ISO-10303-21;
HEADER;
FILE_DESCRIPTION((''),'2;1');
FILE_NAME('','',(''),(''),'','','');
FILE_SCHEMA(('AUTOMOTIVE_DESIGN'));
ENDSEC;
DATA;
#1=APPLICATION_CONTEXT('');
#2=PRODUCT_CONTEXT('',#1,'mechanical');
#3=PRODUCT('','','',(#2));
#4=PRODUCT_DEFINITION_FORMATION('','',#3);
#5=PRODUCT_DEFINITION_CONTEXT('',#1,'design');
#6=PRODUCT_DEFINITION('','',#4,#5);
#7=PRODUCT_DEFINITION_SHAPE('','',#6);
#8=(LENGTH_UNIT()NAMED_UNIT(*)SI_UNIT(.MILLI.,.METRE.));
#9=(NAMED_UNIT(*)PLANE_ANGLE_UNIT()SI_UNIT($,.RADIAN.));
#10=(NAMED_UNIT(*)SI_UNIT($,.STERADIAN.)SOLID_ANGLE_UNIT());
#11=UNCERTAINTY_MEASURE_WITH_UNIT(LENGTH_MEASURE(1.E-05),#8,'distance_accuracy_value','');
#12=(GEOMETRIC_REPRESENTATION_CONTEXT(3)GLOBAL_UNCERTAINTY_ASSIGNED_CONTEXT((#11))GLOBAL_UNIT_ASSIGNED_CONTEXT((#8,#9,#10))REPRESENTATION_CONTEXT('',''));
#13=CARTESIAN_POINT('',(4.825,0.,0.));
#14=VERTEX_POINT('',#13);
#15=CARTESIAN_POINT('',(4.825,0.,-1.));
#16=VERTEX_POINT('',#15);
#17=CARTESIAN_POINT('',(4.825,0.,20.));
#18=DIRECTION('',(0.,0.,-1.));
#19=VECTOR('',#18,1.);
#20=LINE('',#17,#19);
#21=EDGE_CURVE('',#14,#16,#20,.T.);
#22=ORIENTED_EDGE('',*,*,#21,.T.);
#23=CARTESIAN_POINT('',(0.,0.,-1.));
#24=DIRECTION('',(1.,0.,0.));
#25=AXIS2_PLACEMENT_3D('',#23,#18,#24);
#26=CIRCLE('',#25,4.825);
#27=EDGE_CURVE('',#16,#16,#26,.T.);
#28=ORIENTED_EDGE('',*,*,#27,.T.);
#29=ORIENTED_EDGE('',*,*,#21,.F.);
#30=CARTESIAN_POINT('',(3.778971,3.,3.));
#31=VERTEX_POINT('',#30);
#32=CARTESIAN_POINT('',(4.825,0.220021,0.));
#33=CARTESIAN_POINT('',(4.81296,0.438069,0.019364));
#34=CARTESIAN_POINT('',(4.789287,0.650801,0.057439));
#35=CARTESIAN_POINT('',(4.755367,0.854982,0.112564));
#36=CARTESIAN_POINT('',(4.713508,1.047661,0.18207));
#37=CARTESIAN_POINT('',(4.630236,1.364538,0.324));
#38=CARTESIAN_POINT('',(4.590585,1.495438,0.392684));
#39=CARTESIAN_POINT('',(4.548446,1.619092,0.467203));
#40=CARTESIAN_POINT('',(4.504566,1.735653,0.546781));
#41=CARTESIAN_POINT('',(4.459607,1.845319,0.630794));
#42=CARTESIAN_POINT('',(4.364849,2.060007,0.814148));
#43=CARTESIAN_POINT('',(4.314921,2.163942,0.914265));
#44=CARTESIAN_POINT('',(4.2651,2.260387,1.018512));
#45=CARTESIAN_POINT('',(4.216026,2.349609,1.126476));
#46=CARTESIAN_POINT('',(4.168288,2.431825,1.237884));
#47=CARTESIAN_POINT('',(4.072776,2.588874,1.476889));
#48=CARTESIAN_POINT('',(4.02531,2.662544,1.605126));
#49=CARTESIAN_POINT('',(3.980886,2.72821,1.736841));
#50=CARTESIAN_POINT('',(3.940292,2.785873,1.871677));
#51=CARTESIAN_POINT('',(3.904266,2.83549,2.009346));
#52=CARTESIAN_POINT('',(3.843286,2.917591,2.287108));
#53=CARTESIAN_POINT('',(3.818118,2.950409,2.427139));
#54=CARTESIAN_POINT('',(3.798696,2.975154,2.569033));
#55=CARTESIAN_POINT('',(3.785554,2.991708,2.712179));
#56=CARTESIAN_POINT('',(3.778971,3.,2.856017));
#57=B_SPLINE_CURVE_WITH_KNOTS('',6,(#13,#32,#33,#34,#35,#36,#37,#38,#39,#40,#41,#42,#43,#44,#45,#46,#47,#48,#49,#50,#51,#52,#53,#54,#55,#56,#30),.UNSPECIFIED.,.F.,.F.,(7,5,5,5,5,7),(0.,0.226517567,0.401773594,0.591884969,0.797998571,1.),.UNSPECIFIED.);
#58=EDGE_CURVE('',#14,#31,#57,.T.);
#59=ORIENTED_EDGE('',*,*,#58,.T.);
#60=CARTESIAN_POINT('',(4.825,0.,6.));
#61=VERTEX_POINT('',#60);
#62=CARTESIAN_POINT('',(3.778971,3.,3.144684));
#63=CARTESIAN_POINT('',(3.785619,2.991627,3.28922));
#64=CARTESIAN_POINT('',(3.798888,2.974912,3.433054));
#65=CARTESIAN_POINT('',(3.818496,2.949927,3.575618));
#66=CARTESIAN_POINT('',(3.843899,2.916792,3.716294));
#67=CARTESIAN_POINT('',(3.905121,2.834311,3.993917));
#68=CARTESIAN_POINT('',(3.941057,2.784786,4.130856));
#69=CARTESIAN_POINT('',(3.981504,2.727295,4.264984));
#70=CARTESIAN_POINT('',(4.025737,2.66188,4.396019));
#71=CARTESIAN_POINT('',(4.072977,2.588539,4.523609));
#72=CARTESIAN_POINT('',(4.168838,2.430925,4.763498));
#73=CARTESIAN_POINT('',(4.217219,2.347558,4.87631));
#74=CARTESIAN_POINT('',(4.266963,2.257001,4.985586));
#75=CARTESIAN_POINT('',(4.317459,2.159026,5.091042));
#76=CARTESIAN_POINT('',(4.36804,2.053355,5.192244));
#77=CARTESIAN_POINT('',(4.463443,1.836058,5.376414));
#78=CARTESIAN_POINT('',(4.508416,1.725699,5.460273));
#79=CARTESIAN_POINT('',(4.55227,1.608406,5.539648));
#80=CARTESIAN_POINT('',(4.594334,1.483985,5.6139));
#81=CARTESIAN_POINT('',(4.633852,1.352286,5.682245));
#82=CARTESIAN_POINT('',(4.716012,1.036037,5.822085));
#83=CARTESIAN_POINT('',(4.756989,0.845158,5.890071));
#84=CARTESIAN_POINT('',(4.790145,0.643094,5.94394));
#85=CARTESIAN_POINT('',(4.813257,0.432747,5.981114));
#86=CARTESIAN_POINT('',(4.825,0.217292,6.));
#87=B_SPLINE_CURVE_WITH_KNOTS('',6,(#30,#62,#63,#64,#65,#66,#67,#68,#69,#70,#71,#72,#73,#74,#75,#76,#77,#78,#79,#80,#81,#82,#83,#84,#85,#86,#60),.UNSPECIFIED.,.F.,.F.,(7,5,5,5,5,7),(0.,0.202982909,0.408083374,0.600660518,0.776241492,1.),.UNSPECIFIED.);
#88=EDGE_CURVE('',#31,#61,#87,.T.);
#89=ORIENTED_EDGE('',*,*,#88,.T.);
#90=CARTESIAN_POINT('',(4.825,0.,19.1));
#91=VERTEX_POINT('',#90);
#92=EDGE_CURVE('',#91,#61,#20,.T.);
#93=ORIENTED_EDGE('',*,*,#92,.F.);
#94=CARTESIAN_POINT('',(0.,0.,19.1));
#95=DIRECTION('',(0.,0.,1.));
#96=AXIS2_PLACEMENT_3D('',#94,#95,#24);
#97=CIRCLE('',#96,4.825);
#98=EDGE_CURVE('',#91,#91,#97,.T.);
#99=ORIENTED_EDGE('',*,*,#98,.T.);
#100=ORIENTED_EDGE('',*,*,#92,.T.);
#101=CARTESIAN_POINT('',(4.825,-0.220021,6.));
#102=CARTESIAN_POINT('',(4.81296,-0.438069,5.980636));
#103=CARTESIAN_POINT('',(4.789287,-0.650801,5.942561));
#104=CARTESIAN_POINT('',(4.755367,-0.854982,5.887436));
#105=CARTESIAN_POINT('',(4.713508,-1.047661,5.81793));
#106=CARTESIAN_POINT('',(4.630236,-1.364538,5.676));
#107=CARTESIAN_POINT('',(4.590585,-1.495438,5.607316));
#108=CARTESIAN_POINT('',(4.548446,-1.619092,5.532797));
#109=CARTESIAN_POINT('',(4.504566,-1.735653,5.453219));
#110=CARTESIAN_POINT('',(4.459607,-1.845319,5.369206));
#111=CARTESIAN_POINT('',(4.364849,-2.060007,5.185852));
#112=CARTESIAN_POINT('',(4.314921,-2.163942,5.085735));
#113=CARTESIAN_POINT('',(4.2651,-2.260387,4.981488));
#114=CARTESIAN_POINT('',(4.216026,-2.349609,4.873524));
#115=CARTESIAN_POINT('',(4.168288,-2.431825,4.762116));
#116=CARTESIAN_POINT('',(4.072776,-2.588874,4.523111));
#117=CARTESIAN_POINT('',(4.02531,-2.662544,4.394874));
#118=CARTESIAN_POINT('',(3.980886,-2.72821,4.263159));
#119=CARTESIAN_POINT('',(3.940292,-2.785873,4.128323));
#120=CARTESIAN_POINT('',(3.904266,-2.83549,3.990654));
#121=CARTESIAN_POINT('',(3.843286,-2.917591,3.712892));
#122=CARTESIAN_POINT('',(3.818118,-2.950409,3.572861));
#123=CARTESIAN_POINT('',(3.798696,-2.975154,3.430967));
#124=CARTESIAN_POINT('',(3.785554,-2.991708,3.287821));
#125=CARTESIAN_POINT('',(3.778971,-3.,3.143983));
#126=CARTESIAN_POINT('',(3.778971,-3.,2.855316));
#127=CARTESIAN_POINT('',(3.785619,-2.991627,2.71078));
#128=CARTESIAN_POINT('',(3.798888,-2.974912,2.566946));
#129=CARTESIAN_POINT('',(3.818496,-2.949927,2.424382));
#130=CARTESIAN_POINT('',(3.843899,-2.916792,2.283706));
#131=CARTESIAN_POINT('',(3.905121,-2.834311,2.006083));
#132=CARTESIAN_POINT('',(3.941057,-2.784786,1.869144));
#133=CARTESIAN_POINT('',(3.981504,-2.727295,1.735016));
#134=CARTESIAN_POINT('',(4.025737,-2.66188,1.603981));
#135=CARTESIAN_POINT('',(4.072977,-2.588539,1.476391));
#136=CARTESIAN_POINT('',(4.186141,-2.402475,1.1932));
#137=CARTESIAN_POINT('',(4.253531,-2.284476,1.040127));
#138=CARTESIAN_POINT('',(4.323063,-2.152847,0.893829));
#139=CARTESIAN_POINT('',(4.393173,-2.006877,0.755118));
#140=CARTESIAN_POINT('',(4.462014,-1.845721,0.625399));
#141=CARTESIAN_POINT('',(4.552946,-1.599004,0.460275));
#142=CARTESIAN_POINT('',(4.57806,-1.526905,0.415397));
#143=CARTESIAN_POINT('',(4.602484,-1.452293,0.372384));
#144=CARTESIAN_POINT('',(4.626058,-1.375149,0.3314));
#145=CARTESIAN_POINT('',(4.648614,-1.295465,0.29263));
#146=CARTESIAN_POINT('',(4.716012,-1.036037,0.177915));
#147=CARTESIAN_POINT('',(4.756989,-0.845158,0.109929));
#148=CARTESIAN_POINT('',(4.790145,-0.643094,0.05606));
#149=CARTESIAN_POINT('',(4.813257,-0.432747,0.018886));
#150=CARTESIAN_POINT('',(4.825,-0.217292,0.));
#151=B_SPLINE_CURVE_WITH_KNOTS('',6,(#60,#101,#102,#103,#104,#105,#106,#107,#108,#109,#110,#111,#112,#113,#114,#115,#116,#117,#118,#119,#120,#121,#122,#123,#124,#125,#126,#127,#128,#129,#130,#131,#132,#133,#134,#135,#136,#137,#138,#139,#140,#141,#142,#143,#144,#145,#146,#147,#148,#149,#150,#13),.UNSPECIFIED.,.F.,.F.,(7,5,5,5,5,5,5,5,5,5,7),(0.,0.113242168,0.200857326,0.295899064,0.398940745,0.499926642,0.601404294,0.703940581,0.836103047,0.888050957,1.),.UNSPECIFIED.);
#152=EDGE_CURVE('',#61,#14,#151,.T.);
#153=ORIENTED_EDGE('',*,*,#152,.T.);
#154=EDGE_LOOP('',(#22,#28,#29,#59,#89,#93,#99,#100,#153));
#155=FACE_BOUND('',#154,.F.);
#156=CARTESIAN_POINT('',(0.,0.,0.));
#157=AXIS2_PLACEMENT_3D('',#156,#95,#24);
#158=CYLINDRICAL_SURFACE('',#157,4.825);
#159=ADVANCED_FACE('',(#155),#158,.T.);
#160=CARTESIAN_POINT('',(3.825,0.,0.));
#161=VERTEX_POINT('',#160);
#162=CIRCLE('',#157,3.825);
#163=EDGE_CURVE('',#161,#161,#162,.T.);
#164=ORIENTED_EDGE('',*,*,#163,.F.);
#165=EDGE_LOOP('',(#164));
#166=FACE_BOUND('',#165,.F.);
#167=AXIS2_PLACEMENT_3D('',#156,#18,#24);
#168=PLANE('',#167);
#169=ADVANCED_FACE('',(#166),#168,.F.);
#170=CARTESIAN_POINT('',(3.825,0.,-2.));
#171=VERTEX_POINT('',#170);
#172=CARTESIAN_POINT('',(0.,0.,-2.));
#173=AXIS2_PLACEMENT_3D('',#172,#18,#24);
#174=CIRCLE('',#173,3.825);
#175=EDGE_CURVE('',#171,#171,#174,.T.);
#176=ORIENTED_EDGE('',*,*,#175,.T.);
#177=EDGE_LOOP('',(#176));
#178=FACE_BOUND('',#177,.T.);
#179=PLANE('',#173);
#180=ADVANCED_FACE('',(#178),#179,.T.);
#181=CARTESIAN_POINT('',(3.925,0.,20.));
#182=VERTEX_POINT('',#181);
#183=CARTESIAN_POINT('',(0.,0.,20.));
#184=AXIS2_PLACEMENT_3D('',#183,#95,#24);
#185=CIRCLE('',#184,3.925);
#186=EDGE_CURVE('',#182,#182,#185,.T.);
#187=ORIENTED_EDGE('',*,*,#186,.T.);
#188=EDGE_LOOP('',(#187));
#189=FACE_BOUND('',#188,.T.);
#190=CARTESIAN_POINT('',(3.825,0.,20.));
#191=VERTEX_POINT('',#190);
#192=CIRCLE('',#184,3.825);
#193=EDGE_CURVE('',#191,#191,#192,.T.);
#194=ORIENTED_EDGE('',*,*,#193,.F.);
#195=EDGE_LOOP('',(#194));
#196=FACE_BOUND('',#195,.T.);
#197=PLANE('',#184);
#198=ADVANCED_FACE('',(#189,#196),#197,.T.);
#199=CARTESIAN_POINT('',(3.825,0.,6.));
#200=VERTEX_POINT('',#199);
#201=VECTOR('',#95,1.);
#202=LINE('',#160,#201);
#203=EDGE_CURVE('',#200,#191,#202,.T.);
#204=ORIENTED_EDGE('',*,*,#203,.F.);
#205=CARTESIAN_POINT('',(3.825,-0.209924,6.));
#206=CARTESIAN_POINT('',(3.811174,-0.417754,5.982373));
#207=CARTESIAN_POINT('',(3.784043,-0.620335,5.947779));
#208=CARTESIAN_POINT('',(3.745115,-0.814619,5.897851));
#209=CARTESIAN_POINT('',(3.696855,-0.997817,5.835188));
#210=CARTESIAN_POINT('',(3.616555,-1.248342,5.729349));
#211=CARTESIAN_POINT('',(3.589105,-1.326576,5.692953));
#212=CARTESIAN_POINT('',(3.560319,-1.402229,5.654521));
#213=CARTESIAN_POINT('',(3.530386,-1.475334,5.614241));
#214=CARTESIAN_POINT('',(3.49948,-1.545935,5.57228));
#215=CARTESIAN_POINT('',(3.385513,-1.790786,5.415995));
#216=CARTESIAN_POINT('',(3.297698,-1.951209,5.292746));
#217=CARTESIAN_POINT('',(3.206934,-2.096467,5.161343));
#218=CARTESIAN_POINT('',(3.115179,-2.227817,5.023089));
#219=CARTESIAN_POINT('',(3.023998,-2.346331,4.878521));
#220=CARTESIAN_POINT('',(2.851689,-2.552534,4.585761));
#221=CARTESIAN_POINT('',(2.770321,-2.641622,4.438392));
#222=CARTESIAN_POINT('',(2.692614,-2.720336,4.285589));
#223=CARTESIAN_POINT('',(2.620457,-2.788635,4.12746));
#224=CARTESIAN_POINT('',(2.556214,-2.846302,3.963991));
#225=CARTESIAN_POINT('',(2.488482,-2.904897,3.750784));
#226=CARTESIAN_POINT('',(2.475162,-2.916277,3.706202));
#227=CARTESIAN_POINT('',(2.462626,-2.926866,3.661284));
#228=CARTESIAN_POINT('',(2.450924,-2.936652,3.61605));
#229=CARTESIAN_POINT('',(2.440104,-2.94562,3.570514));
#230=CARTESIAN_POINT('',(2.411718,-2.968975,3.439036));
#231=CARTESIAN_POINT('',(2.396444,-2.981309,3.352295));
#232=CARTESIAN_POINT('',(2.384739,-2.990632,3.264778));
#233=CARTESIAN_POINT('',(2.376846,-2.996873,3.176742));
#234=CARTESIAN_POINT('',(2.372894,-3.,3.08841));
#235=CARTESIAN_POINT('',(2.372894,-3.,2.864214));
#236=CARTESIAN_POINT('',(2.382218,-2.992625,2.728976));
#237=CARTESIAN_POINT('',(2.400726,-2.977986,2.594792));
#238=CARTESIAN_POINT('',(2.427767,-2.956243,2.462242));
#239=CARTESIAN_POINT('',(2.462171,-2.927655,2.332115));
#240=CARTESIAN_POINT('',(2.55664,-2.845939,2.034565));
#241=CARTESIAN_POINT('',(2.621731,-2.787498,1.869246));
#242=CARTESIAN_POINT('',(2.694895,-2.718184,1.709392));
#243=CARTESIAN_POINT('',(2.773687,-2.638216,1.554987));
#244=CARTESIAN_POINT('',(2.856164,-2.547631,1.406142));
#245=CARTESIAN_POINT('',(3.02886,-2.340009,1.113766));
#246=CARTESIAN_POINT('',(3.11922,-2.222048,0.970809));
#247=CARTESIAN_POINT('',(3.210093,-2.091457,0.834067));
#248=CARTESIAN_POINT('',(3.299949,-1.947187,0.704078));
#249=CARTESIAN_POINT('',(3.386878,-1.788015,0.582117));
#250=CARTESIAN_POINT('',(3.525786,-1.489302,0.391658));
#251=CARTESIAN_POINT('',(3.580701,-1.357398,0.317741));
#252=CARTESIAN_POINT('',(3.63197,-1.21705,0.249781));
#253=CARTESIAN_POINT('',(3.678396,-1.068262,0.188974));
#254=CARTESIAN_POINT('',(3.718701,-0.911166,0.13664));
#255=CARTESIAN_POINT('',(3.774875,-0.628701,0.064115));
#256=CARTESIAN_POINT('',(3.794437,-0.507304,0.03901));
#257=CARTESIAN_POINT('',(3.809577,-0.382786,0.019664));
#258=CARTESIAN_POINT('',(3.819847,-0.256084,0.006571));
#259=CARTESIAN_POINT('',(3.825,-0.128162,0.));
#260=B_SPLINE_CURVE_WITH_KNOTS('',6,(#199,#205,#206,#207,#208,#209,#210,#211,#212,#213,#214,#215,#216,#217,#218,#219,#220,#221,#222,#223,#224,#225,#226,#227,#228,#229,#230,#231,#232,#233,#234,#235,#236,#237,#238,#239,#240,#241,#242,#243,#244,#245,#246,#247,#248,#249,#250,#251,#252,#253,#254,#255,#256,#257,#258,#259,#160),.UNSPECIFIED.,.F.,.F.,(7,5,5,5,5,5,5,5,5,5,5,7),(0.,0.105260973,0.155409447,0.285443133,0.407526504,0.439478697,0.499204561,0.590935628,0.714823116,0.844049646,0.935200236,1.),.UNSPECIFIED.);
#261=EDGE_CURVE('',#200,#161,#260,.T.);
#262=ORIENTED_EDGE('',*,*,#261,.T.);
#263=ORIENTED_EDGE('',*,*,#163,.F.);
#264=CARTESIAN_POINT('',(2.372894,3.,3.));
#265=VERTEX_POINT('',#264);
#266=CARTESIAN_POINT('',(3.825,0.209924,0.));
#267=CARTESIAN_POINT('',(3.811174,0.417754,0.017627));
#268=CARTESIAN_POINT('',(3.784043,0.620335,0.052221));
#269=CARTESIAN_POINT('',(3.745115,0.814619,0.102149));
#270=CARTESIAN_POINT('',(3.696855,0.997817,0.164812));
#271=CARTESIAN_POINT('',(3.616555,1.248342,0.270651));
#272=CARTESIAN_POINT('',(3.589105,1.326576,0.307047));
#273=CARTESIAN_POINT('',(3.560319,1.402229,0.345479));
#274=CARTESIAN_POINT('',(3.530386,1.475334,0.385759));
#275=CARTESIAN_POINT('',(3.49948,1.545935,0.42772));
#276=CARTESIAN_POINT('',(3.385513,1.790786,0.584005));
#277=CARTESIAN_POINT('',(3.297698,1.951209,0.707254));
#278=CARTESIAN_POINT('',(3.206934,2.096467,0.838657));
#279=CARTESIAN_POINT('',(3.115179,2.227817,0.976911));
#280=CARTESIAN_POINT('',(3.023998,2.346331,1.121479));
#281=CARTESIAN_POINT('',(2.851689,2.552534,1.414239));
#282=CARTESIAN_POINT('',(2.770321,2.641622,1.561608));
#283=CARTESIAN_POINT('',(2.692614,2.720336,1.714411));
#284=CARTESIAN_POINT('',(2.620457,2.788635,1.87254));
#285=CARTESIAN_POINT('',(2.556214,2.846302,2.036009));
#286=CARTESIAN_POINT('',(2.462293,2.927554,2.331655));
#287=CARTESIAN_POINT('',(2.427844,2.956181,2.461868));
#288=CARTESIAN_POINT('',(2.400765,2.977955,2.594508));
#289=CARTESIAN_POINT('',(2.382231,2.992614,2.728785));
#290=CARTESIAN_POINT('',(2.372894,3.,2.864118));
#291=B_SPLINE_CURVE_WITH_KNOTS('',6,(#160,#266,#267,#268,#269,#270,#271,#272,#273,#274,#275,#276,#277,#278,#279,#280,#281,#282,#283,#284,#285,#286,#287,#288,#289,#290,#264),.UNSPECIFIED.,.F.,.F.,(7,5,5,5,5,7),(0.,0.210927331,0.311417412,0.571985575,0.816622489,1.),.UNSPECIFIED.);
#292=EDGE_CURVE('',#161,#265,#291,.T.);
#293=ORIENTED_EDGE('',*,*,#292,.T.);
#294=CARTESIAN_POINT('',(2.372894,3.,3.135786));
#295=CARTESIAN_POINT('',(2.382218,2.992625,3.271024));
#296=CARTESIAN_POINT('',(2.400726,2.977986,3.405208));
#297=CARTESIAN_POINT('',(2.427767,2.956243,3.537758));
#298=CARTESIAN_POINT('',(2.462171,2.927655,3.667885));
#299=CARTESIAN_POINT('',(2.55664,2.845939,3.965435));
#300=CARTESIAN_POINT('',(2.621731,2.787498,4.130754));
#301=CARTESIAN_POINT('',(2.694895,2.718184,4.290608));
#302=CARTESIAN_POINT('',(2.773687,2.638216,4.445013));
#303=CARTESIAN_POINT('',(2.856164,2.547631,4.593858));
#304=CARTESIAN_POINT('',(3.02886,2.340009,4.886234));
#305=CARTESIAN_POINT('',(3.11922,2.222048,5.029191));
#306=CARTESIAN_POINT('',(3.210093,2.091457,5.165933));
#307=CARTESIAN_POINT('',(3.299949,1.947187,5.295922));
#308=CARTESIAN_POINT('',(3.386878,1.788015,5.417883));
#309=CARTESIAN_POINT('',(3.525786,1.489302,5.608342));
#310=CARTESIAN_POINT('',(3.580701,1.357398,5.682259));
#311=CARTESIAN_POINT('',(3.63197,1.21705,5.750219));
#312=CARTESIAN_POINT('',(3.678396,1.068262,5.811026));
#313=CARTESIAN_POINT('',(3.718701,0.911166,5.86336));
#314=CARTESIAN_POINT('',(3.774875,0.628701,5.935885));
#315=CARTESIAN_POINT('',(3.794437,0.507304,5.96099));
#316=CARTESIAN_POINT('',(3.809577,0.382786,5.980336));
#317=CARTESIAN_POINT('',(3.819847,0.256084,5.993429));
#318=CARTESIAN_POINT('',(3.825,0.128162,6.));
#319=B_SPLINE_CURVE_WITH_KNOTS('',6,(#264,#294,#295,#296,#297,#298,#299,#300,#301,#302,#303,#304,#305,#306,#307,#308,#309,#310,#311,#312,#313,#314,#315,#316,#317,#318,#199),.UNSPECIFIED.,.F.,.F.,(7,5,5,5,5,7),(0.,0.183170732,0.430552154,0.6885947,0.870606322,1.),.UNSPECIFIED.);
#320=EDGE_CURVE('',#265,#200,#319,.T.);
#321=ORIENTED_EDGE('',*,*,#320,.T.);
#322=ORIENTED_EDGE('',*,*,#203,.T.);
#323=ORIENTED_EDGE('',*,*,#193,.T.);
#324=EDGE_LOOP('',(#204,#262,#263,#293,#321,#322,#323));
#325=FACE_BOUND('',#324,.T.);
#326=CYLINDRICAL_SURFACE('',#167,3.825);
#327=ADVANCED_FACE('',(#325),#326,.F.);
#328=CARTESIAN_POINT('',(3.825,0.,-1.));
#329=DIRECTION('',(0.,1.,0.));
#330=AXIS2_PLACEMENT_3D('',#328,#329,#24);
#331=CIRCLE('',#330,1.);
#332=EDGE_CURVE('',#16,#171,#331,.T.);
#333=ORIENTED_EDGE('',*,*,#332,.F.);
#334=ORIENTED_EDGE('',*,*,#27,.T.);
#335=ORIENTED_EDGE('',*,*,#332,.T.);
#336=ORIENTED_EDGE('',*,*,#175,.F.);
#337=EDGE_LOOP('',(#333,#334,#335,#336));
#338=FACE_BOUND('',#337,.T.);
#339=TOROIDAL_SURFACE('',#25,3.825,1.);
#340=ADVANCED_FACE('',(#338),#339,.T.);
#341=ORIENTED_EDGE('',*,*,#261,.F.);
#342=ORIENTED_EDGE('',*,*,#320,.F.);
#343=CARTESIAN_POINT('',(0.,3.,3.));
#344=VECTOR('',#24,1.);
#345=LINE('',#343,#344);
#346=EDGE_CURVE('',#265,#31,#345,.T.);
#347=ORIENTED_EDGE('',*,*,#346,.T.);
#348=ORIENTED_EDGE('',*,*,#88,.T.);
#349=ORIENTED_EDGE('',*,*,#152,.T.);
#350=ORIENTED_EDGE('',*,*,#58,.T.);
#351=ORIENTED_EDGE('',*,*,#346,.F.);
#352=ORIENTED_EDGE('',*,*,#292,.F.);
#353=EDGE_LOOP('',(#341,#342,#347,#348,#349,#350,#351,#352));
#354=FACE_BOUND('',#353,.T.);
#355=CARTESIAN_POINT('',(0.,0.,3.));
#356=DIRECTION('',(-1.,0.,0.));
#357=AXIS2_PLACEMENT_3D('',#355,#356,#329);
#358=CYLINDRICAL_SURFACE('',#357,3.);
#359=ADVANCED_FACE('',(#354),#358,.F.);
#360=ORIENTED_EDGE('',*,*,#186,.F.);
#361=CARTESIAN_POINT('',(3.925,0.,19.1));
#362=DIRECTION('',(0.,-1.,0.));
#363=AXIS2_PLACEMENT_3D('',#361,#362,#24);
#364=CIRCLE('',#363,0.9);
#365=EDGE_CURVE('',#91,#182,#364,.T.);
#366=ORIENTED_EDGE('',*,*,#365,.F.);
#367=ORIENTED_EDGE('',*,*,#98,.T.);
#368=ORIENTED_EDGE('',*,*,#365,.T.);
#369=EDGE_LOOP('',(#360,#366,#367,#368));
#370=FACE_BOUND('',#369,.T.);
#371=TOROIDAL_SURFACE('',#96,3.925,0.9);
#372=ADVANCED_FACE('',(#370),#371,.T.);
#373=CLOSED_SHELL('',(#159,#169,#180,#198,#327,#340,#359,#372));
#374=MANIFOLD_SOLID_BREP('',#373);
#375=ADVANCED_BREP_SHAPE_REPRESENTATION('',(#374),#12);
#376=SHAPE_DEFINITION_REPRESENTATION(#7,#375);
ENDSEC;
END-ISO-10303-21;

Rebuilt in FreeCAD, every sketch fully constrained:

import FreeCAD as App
import Part
import Sketcher
Q = App.Units.Quantity


def edges_at(feature, points):
    """Names of the edges that pass closest to the given points."""
    edges = feature.Shape.Edges
    near = lambda p: min(range(len(edges)), key=lambda i: edges[i].distToShape(Part.Vertex(*p))[0])
    return sorted({f"Edge{near(p) + 1}" for p in points})

doc = App.newDocument("Part")
params = doc.addObject("Spreadsheet::Sheet", "Params")
for row, (alias, value) in enumerate([
    ("sketch1_diameter", "6 mm"),
    ("pad1_length", "10 mm"),
    ("sketch2_diameter", "9.65 mm"),
    ("sketch2_diameter2", "7.65 mm"),
    ("pad2_length", "20 mm"),
    ("sketch3_diameter", "9.65 mm"),
    ("pad3_length", "2 mm"),
    ("fillet_radius", "1 mm"),
    ("fillet2_radius", "0.9 mm"),
], start=1):
    params.set(f"A{row}", alias)
    params.set(f"B{row}", "=" + value)
    params.setAlias(f"B{row}", alias)

body = doc.addObject("PartDesign::Body", "Body")

sketch1 = body.newObject("Sketcher::SketchObject", "Sketch")
sketch1.AttachmentSupport = (doc.getObject("YZ_Plane"), [""])
sketch1.MapMode = "FlatFace"
sketch1.addGeometry(Part.Circle(App.Vector(0, 3, 0), App.Vector(0, 0, 1), 3), False)
sketch1.addConstraint([
    Sketcher.Constraint("PointOnObject", 0, 3, -2),
    Sketcher.Constraint("Diameter", 0, Q("6 mm")),
    Sketcher.Constraint("DistanceY", -1, 1, 0, 3, Q("3 mm")),
])
sketch1.setExpression("Constraints[1]", "Params.sketch1_diameter")
pad1 = body.newObject("PartDesign::Pad", "Pad")
pad1.Profile = sketch1
pad1.setExpression("Length", "Params.pad1_length")
body2 = doc.addObject("PartDesign::Body", "Body001")

sketch2 = body2.newObject("Sketcher::SketchObject", "Sketch001")
sketch2.AttachmentSupport = (doc.getObject("XY_Plane001"), [""])
sketch2.MapMode = "FlatFace"
sketch2.addGeometry([
    Part.Circle(App.Vector(0, 0, 0), App.Vector(0, 0, 1), 4.825),
    Part.Circle(App.Vector(0, 0, 0), App.Vector(0, 0, 1), 3.825),
], False)
sketch2.addConstraint([
    Sketcher.Constraint("Coincident", 0, 3, -1, 1),
    Sketcher.Constraint("Coincident", 1, 3, -1, 1),
    Sketcher.Constraint("Diameter", 0, Q("9.65 mm")),
    Sketcher.Constraint("Diameter", 1, Q("7.65 mm")),
])
sketch2.setExpression("Constraints[2]", "Params.sketch2_diameter")
sketch2.setExpression("Constraints[3]", "Params.sketch2_diameter2")
pad2 = body2.newObject("PartDesign::Pad", "Pad001")
pad2.Profile = sketch2
pad2.setExpression("Length", "Params.pad2_length")

sketch3 = body2.newObject("Sketcher::SketchObject", "Sketch002")
sketch3.AttachmentSupport = (doc.getObject("XY_Plane001"), [""])
sketch3.MapMode = "FlatFace"
sketch3.addGeometry(Part.Circle(App.Vector(0, 0, 0), App.Vector(0, 0, 1), 4.825), False)
sketch3.addConstraint([
    Sketcher.Constraint("Coincident", 0, 3, -1, 1),
    Sketcher.Constraint("Diameter", 0, Q("9.65 mm")),
])
sketch3.setExpression("Constraints[1]", "Params.sketch3_diameter")
pad3 = body2.newObject("PartDesign::Pad", "Pad002")
pad3.Profile = sketch3
pad3.setExpression("Length", "Params.pad3_length")
pad3.Reversed = True
doc.recompute()

boolean = body2.newObject("PartDesign::Boolean", "Boolean")
boolean.Type = "Cut"
boolean.addObjects([body])
doc.recompute()

fillet = body2.newObject("PartDesign::Fillet", "Fillet")
fillet.Base = (boolean, edges_at(boolean, [(-4.825, 0, -2)]))
fillet.setExpression("Radius", "Params.fillet_radius")
doc.recompute()

fillet2 = body2.newObject("PartDesign::Fillet", "Fillet001")
fillet2.Base = (fillet, edges_at(fillet, [(-4.825, 0, 20)]))
fillet2.setExpression("Radius", "Params.fillet2_radius")

doc.recompute()
